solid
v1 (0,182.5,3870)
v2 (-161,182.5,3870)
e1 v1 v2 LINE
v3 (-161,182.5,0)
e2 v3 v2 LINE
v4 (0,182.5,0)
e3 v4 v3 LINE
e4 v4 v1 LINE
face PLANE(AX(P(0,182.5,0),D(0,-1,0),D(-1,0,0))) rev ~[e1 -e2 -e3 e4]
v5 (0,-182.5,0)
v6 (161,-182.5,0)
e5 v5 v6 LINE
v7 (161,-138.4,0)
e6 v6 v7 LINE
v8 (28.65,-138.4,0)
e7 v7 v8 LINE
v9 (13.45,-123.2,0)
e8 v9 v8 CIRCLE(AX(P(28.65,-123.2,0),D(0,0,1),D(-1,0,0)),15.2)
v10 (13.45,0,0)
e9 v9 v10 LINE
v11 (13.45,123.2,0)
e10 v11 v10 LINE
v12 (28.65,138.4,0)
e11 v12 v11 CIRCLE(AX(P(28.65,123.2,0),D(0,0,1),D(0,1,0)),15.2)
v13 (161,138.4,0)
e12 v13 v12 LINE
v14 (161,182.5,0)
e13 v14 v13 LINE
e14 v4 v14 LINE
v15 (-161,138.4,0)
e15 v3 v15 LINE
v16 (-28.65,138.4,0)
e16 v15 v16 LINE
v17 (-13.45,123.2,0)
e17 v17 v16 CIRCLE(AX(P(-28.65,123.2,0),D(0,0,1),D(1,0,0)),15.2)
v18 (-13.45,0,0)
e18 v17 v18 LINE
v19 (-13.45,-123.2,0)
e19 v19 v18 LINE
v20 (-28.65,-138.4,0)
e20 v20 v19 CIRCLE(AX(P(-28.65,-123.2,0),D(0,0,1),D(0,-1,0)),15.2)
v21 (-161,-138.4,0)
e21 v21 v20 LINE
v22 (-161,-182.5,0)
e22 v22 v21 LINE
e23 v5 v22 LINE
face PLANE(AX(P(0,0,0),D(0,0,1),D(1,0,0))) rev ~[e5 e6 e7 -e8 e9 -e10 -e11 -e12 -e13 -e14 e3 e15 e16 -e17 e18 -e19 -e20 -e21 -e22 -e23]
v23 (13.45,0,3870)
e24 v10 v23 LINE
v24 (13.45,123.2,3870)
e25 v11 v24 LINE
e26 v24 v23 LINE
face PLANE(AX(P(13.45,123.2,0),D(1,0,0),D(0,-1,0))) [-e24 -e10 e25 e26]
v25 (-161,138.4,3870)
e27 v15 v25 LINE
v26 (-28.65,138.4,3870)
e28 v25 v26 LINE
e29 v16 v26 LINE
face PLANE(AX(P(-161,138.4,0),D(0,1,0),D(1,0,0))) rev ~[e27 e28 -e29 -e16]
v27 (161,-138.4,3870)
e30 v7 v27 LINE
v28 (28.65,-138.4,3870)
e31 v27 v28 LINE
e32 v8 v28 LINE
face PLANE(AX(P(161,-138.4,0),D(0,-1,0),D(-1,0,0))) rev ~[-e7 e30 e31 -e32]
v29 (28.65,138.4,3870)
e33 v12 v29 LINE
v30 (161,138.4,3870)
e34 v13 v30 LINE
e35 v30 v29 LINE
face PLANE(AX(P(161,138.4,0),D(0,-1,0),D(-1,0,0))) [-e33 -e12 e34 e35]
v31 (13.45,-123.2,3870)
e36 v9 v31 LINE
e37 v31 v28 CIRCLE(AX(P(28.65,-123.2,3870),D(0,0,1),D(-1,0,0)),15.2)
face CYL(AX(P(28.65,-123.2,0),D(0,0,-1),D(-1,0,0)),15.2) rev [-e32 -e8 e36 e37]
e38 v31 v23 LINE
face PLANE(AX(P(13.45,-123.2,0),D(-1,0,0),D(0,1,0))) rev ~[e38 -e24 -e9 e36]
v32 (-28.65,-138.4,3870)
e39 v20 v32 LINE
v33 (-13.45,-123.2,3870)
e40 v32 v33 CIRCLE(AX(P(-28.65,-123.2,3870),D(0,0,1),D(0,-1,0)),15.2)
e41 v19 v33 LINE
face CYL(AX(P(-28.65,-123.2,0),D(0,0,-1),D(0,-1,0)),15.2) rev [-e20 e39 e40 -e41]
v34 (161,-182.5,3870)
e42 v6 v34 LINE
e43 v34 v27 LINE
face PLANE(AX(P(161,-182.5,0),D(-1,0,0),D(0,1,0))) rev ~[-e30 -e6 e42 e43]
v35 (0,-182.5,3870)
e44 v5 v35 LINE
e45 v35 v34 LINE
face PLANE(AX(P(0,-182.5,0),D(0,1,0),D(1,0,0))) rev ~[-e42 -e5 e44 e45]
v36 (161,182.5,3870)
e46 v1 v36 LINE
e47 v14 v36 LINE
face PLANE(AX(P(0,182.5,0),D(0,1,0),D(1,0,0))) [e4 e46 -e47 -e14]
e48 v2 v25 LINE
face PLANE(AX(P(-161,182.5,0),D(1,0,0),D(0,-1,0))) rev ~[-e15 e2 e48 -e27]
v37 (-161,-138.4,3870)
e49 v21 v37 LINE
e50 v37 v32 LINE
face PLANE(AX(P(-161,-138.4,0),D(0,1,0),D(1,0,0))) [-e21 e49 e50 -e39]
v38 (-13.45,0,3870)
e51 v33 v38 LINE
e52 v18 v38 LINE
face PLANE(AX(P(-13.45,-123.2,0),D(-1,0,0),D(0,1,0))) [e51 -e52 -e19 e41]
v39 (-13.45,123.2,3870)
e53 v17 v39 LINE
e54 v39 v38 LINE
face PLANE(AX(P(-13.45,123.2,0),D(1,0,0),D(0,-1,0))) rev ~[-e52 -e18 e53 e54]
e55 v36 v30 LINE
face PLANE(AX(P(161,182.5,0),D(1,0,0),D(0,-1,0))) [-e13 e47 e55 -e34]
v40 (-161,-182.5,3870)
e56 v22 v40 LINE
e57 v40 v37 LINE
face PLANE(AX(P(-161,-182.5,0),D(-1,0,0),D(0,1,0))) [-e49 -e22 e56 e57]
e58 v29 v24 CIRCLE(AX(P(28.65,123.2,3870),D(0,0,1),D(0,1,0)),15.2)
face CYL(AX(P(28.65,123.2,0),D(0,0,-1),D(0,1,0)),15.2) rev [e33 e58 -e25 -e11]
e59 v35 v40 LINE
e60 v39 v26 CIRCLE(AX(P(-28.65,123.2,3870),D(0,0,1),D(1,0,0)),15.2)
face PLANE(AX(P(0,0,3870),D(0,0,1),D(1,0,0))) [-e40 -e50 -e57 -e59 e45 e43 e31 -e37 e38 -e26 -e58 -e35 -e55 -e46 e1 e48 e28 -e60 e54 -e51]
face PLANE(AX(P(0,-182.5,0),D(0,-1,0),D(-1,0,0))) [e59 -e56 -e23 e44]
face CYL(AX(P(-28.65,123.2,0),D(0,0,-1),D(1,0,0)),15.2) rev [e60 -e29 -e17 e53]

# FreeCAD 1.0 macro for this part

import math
import FreeCAD as App
import Part
import Sketcher
Q = App.Units.Quantity

doc = App.newDocument("Part")
body = doc.addObject("PartDesign::Body", "Body")

sketch1 = body.newObject("Sketcher::SketchObject", "Sketch")
sketch1.AttachmentSupport = (doc.getObject("XY_Plane"), [""])
sketch1.MapMode = "FlatFace"
sketch1.addGeometry([
    Part.LineSegment(App.Vector(-161, -138.4, 0), App.Vector(-161, -182.5, 0)),
    Part.LineSegment(App.Vector(-161, -182.5, 0), App.Vector(161, -182.5, 0)),
    Part.LineSegment(App.Vector(161, -182.5, 0), App.Vector(161, -138.4, 0)),
    Part.LineSegment(App.Vector(161, -138.4, 0), App.Vector(28.65, -138.4, 0)),
    Part.ArcOfCircle(Part.Circle(App.Vector(28.65, -123.2, 0), App.Vector(0, 0, 1), 15.2), math.radians(180), math.radians(270)),
    Part.LineSegment(App.Vector(13.45, -123.2, 0), App.Vector(13.45, 123.2, 0)),
    Part.ArcOfCircle(Part.Circle(App.Vector(28.65, 123.2, 0), App.Vector(0, 0, 1), 15.2), math.radians(90), math.radians(180)),
    Part.LineSegment(App.Vector(28.65, 138.4, 0), App.Vector(161, 138.4, 0)),
    Part.LineSegment(App.Vector(161, 138.4, 0), App.Vector(161, 182.5, 0)),
    Part.LineSegment(App.Vector(161, 182.5, 0), App.Vector(-161, 182.5, 0)),
    Part.LineSegment(App.Vector(-161, 182.5, 0), App.Vector(-161, 138.4, 0)),
    Part.LineSegment(App.Vector(-161, 138.4, 0), App.Vector(-28.65, 138.4, 0)),
    Part.ArcOfCircle(Part.Circle(App.Vector(-28.65, 123.2, 0), App.Vector(0, 0, 1), 15.2), math.radians(0), math.radians(90)),
    Part.LineSegment(App.Vector(-13.45, 123.2, 0), App.Vector(-13.45, -123.2, 0)),
    Part.ArcOfCircle(Part.Circle(App.Vector(-28.65, -123.2, 0), App.Vector(0, 0, 1), 15.2), math.radians(-90), math.radians(0)),
    Part.LineSegment(App.Vector(-28.65, -138.4, 0), App.Vector(-161, -138.4, 0)),
], False)
sketch1.addConstraint([
    Sketcher.Constraint("Coincident", 0, 2, 1, 1),
    Sketcher.Constraint("Coincident", 1, 2, 2, 1),
    Sketcher.Constraint("Coincident", 2, 2, 3, 1),
    Sketcher.Constraint("Tangent", 3, 2, 4, 2),
    Sketcher.Constraint("Tangent", 4, 1, 5, 1),
    Sketcher.Constraint("Tangent", 5, 2, 6, 2),
    Sketcher.Constraint("Tangent", 6, 1, 7, 1),
    Sketcher.Constraint("Coincident", 7, 2, 8, 1),
    Sketcher.Constraint("Coincident", 8, 2, 9, 1),
    Sketcher.Constraint("Coincident", 9, 2, 10, 1),
    Sketcher.Constraint("Coincident", 10, 2, 11, 1),
    Sketcher.Constraint("Tangent", 11, 2, 12, 2),
    Sketcher.Constraint("Tangent", 12, 1, 13, 1),
    Sketcher.Constraint("Tangent", 13, 2, 14, 2),
    Sketcher.Constraint("Tangent", 14, 1, 15, 1),
    Sketcher.Constraint("Coincident", 15, 2, 0, 1),
    Sketcher.Constraint("Vertical", 0),
    Sketcher.Constraint("Horizontal", 1),
    Sketcher.Constraint("Vertical", 2),
    Sketcher.Constraint("Horizontal", 3),
    Sketcher.Constraint("Vertical", 5),
    Sketcher.Constraint("Horizontal", 7),
    Sketcher.Constraint("Vertical", 8),
    Sketcher.Constraint("Horizontal", 9),
    Sketcher.Constraint("Vertical", 10),
    Sketcher.Constraint("Horizontal", 11),
    Sketcher.Constraint("Vertical", 13),
    Sketcher.Constraint("Horizontal", 15),
    Sketcher.Constraint("Equal", 4, 6),
    Sketcher.Constraint("Equal", 6, 12),
    Sketcher.Constraint("Equal", 12, 14),
    Sketcher.Constraint("Symmetric", 4, 3, 12, 3, -1, 1),
    Sketcher.Constraint("Symmetric", 0, 2, 8, 2, -1, 1),
    Sketcher.Constraint("Symmetric", 7, 2, 10, 2, -2),
    Sketcher.Constraint("Symmetric", 2, 2, 15, 2, -2),
    Sketcher.Constraint("Radius", 4, Q("15.2 mm")),
    Sketcher.Constraint("DistanceY", 0, 2, 0, 1, Q("44.1 mm")),
    Sketcher.Constraint("DistanceX", 0, 2, -1, 1, Q("161 mm")),
    Sketcher.Constraint("DistanceY", 0, 2, -1, 1, Q("182.5 mm")),
    Sketcher.Constraint("DistanceX", -1, 1, 4, 1, Q("13.45 mm")),
])
pad1 = body.newObject("PartDesign::Pad", "Pad")
pad1.Profile = sketch1
pad1.Length = 3870

doc.recompute()
